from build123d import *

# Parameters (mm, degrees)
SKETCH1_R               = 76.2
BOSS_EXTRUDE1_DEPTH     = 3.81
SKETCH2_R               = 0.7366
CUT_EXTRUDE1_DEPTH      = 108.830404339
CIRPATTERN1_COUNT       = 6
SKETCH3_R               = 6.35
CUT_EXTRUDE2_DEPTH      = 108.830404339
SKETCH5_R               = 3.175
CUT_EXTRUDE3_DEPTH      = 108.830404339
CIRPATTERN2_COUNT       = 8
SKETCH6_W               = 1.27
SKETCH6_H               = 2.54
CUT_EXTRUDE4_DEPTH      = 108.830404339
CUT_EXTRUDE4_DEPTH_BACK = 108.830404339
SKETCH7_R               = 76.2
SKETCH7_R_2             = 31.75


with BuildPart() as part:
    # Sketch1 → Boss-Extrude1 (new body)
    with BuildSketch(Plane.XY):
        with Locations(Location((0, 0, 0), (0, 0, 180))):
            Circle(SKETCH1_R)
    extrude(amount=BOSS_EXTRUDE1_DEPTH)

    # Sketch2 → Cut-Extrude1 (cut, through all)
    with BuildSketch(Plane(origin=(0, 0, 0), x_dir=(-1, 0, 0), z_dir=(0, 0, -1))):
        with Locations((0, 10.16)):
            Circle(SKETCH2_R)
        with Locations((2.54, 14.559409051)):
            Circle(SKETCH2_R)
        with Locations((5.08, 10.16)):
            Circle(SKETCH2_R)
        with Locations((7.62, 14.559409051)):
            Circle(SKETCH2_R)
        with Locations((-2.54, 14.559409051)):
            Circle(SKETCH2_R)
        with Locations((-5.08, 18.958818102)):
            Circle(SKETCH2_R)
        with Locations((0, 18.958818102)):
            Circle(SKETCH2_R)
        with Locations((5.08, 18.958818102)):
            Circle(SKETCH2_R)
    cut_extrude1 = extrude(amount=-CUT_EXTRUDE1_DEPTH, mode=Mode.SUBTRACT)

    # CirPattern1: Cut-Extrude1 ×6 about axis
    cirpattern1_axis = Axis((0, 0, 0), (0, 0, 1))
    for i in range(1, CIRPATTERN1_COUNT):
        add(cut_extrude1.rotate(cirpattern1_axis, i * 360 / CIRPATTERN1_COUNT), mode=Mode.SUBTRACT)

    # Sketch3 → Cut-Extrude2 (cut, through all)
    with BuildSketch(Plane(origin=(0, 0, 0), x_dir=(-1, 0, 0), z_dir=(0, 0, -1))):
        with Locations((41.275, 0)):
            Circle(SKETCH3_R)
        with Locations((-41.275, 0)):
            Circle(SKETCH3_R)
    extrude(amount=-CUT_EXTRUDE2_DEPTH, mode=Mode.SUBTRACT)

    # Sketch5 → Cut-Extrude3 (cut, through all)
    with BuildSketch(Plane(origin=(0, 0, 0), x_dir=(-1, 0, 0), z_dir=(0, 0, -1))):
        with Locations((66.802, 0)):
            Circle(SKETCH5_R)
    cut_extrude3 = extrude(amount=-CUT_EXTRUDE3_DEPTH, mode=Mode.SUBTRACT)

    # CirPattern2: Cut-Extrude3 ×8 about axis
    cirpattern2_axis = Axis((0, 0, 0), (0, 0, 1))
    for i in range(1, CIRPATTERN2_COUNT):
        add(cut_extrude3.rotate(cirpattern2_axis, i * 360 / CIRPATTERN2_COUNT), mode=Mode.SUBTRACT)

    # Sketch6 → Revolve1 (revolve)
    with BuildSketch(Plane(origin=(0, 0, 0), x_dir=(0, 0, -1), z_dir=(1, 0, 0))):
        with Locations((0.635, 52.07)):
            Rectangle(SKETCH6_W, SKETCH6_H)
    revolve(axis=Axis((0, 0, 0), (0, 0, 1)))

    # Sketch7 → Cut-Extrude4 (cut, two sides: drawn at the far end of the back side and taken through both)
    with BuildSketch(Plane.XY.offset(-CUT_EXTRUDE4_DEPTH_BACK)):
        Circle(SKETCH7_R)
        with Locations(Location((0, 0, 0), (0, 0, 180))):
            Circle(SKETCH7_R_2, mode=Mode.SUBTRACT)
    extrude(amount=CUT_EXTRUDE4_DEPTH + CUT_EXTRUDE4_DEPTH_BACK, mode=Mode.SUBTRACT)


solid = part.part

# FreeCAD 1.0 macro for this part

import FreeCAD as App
import Part
import Sketcher

V = App.Vector
Q = App.Units.Quantity

doc = App.newDocument("Part")
body = doc.addObject("PartDesign::Body", "Body")

# Sketch on XY plane
sketch1 = body.newObject("Sketcher::SketchObject", "Sketch")
sketch1.AttachmentSupport = (doc.getObject("XY_Plane"), [""])
sketch1.MapMode = "FlatFace"
sketch1.addGeometry(Part.Circle(V(0, 0, 0), V(0, 0, 1), 76), False)
sketch1.addConstraint([
    Sketcher.Constraint("Coincident", 0, 3, -1, 1),
    Sketcher.Constraint("Diameter", 0, Q("6 in")),
])
pad1 = body.newObject("PartDesign::Pad", "Pad")
pad1.Profile = sketch1
pad1.Length = Q("0.15 in")

# Sketch on XY plane
sketch2 = body.newObject("Sketcher::SketchObject", "Sketch001")
sketch2.AttachmentSupport = (doc.getObject("XY_Plane"), [""])
sketch2.MapMode = "FlatFace"
sketch2.addGeometry([
    Part.Circle(V(0, 10.2, 0), V(0, 0, 1), 0.7),  # 0
    Part.Circle(V(-2.5, 14.6, 0), V(0, 0, 1), 0.7),  # 1
    Part.Circle(V(-5.1, 10.2, 0), V(0, 0, 1), 0.7),  # 2
    Part.Circle(V(-7.6, 14.6, 0), V(0, 0, 1), 0.7),  # 3
    Part.Circle(V(2.5, 14.6, 0), V(0, 0, 1), 0.7),  # 4
    Part.Circle(V(5.1, 19, 0), V(0, 0, 1), 0.7),  # 5
    Part.Circle(V(0, 19, 0), V(0, 0, 1), 0.7),  # 6
    Part.Circle(V(-5.1, 19, 0), V(0, 0, 1), 0.7),  # 7
], False)
sketch2.addConstraint([
    Sketcher.Constraint("Equal", 0, 1),
    Sketcher.Constraint("Equal", 1, 2),
    Sketcher.Constraint("Equal", 2, 3),
    Sketcher.Constraint("Equal", 3, 4),
    Sketcher.Constraint("Equal", 4, 5),
    Sketcher.Constraint("Equal", 5, 6),
    Sketcher.Constraint("Equal", 6, 7),
    Sketcher.Constraint("Symmetric", 1, 3, 4, 3, -2),
    Sketcher.Constraint("Symmetric", 5, 3, 7, 3, -2),
    Sketcher.Constraint("PointOnObject", 0, 3, -2),
    Sketcher.Constraint("PointOnObject", 6, 3, -2),
    Sketcher.Constraint("Horizontal", 0, 3, 2, 3),
    Sketcher.Constraint("Horizontal", 1, 3, 3, 3),
    Sketcher.Constraint("Horizontal", 5, 3, 6, 3),
    Sketcher.Constraint("Vertical", 2, 3, 7, 3),
    Sketcher.Constraint("Diameter", 0, Q("0.058 in")),
    Sketcher.Constraint("DistanceY", -1, 1, 0, 3, Q("0.4 in")),
    Sketcher.Constraint("DistanceX", 1, 3, -1, 1, Q("0.1 in")),
    Sketcher.Constraint("DistanceX", 2, 3, -1, 1, Q("0.2 in")),
    Sketcher.Constraint("DistanceX", 3, 3, -1, 1, Q("0.3 in")),
    Sketcher.Constraint("DistanceY", -1, 1, 1, 3, 14.559409),
    Sketcher.Constraint("DistanceY", -1, 1, 5, 3, 18.958818),
])
pocket1 = body.newObject("PartDesign::Pocket", "Pocket")
pocket1.Profile = sketch2
pocket1.Type = "ThroughAll"
pocket1.Reversed = True
doc.recompute()

polarpattern = body.newObject("PartDesign::PolarPattern", "PolarPattern")
polarpattern.Originals = [pocket1]
polarpattern.Axis = (doc.getObject("Z_Axis"), [""])
polarpattern.Angle = 360
polarpattern.Occurrences = 6
body.Tip = polarpattern

# Sketch on XY plane
sketch3 = body.newObject("Sketcher::SketchObject", "Sketch002")
sketch3.AttachmentSupport = (doc.getObject("XY_Plane"), [""])
sketch3.MapMode = "FlatFace"
sketch3.addGeometry([
    Part.Circle(V(-41, 0, 0), V(0, 0, 1), 6),
    Part.Circle(V(41, 0, 0), V(0, 0, 1), 6),
], False)
sketch3.addConstraint([
    Sketcher.Constraint("Equal", 0, 1),
    Sketcher.Constraint("Symmetric", 0, 3, 1, 3, -1, 1),
    Sketcher.Constraint("PointOnObject", 0, 3, -1),
    Sketcher.Constraint("Diameter", 0, Q("0.5 in")),
    Sketcher.Constraint("DistanceX", 0, 3, 1, 3, Q("3.25 in")),
])
pocket2 = body.newObject("PartDesign::Pocket", "Pocket001")
pocket2.Profile = sketch3
pocket2.Type = "ThroughAll"
pocket2.Reversed = True

# Sketch on XY plane
sketch4 = body.newObject("Sketcher::SketchObject", "Sketch003")
sketch4.AttachmentSupport = (doc.getObject("XY_Plane"), [""])
sketch4.MapMode = "FlatFace"
sketch4.addGeometry(Part.Circle(V(-66.8, 0, 0), V(0, 0, 1), 3.2), False)
sketch4.addConstraint([
    Sketcher.Constraint("PointOnObject", 0, 3, -1),
    Sketcher.Constraint("Diameter", 0, Q("0.25 in")),
    Sketcher.Constraint("DistanceX", 0, 3, -1, 1, Q("2.63 in")),
])
pocket3 = body.newObject("PartDesign::Pocket", "Pocket002")
pocket3.Profile = sketch4
pocket3.Type = "ThroughAll"
pocket3.Reversed = True
doc.recompute()

polarpattern2 = body.newObject("PartDesign::PolarPattern", "PolarPattern001")
polarpattern2.Originals = [pocket3]
polarpattern2.Axis = (doc.getObject("Z_Axis"), [""])
polarpattern2.Angle = 360
polarpattern2.Occurrences = 8
body.Tip = polarpattern2

# Sketch on YZ plane
sketch5 = body.newObject("Sketcher::SketchObject", "Sketch004")
sketch5.AttachmentSupport = (doc.getObject("YZ_Plane"), [""])
sketch5.MapMode = "FlatFace"
sketch5.addGeometry([
    Part.LineSegment(V(53.3, 0, 0), V(50.8, 0, 0)),
    Part.LineSegment(V(50.8, 0, 0), V(50.8, -1.3, 0)),
    Part.LineSegment(V(50.8, -1.3, 0), V(53.3, -1.3, 0)),
    Part.LineSegment(V(53.3, -1.3, 0), V(53.3, 0, 0)),
], False)
sketch5.addConstraint([
    Sketcher.Constraint("Coincident", 0, 2, 1, 1),
    Sketcher.Constraint("Coincident", 1, 2, 2, 1),
    Sketcher.Constraint("Coincident", 2, 2, 3, 1),
    Sketcher.Constraint("Coincident", 3, 2, 0, 1),
    Sketcher.Constraint("Horizontal", 0),
    Sketcher.Constraint("Vertical", 1),
    Sketcher.Constraint("Horizontal", 2),
    Sketcher.Constraint("Vertical", 3),
    Sketcher.Constraint("PointOnObject", 0, 2, -1),
    Sketcher.Constraint("DistanceX", 0, 2, 0, 1, Q("0.1 in")),
    Sketcher.Constraint("DistanceX", -1, 1, 0, 2, Q("2 in")),
    Sketcher.Constraint("DistanceY", 1, 2, 1, 1, Q("0.05 in")),
])
revolution = body.newObject("PartDesign::Revolution", "Revolution")
revolution.Profile = sketch5
revolution.ReferenceAxis = (sketch5, ["V_Axis"])
revolution.Angle = 360

# Sketch on XY plane
sketch6 = body.newObject("Sketcher::SketchObject", "Sketch005")
sketch6.AttachmentSupport = (doc.getObject("XY_Plane"), [""])
sketch6.MapMode = "FlatFace"
sketch6.addGeometry([
    Part.Circle(V(0, 0, 0), V(0, 0, 1), 76),
    Part.Circle(V(0, 0, 0), V(0, 0, 1), 32),
], False)
sketch6.addConstraint([
    Sketcher.Constraint("Coincident", 0, 3, -1, 1),
    Sketcher.Constraint("Coincident", 1, 3, -1, 1),
    Sketcher.Constraint("Diameter", 0, Q("6 in")),
    Sketcher.Constraint("Diameter", 1, Q("2.5 in")),
])
pocket4 = body.newObject("PartDesign::Pocket", "Pocket003")
pocket4.Profile = sketch6
pocket4.Type = "ThroughAll"
pocket4.Midplane = True

doc.recompute()
